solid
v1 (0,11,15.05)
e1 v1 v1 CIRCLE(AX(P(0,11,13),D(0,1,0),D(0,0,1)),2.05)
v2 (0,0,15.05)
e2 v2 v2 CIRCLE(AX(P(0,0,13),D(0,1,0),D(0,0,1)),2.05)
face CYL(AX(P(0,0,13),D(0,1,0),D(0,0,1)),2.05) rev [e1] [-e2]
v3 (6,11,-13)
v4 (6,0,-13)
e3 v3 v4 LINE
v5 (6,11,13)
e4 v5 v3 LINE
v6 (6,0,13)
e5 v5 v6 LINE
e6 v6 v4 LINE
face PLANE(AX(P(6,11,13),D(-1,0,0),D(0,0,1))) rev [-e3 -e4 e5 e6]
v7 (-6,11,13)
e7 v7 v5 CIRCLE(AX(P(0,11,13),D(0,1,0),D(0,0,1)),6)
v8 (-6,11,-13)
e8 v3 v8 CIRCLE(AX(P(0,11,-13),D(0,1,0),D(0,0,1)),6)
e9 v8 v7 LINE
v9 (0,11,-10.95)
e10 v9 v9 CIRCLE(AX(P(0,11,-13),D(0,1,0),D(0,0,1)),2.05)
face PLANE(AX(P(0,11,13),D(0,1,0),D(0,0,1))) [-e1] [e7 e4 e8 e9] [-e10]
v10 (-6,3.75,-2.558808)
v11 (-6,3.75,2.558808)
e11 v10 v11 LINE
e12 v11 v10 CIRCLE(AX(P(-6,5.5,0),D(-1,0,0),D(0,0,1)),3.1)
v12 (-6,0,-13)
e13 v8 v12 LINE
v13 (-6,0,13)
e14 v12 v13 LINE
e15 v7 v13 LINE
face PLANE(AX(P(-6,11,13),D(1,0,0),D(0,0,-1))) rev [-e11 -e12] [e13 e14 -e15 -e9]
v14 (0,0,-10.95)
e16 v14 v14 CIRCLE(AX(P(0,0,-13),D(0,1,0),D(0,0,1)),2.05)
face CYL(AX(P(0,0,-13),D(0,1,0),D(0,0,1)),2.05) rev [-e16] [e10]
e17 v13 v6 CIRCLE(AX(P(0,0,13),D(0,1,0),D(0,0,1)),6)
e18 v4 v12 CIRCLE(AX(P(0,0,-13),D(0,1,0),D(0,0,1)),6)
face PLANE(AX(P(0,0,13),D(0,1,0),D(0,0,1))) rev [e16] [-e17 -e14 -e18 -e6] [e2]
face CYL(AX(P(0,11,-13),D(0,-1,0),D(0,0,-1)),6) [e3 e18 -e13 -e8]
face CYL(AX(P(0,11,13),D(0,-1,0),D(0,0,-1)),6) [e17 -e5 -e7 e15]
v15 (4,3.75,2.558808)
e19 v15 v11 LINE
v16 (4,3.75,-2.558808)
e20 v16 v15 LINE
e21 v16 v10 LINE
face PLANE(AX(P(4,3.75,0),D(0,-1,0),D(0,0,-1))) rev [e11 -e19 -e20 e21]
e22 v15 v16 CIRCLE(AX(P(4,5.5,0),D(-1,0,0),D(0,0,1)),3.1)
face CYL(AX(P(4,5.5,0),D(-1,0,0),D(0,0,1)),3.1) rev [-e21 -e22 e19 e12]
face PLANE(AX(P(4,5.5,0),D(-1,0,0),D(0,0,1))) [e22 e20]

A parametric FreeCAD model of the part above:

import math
import FreeCAD as App
import Part
import Sketcher

doc = App.newDocument("Part")
body = doc.addObject("PartDesign::Body", "Body")

# Sketch on XZ plane
sketch1 = body.newObject("Sketcher::SketchObject", "Sketch")
sketch1.AttachmentSupport = (doc.getObject("XZ_Plane"), [""])
sketch1.MapMode = "FlatFace"
sketch1.addGeometry([
    Part.LineSegment(App.Vector(-6, -13, 0), App.Vector(-6, 13, 0)),
    Part.ArcOfCircle(Part.Circle(App.Vector(0, 13, 0), App.Vector(0, 0, 1), 6), math.radians(0), math.radians(180)),
    Part.LineSegment(App.Vector(6, 13, 0), App.Vector(6, -13, 0)),
    Part.ArcOfCircle(Part.Circle(App.Vector(0, -13, 0), App.Vector(0, 0, 1), 6), math.radians(180), math.radians(360)),
], False)
sketch1.addConstraint([
    Sketcher.Constraint("Tangent", 0, 2, 1, 2),
    Sketcher.Constraint("Tangent", 1, 1, 2, 1),
    Sketcher.Constraint("Tangent", 2, 2, 3, 2),
    Sketcher.Constraint("Tangent", 3, 1, 0, 1),
    Sketcher.Constraint("Vertical", 0),
    Sketcher.Constraint("Vertical", 2),
    Sketcher.Constraint("Symmetric", 1, 3, 3, 3, -1, 1),
    Sketcher.Constraint("Radius", 1, 6.0),
    Sketcher.Constraint("DistanceY", 0, 1, 0, 2, 26.0),
])
pad1 = body.newObject("PartDesign::Pad", "Pad")
pad1.Profile = sketch1
pad1.Length = 11
pad1.Reversed = True

# Sketch on XZ plane
sketch2 = body.newObject("Sketcher::SketchObject", "Sketch001")
sketch2.AttachmentSupport = (doc.getObject("XZ_Plane"), [""])
sketch2.MapMode = "FlatFace"
sketch2.AttachmentOffset = App.Placement(App.Vector(0, 0, -11), App.Rotation())
sketch2.addGeometry([
    Part.Circle(App.Vector(0, -13, 0), App.Vector(0, 0, 1), 2),
    Part.Circle(App.Vector(0, 13, 0), App.Vector(0, 0, 1), 2),
], False)
sketch2.addConstraint([
    Sketcher.Constraint("Equal", 0, 1),
    Sketcher.Constraint("Symmetric", 0, 3, 1, 3, -1, 1),
    Sketcher.Constraint("PointOnObject", 0, 3, -2),
    Sketcher.Constraint("Diameter", 0, 4.1),
    Sketcher.Constraint("DistanceY", 0, 3, -1, 1, 13.0),
])
pocket1 = body.newObject("PartDesign::Pocket", "Pocket")
pocket1.Profile = sketch2
pocket1.Type = "ThroughAll"
pocket1.Reversed = True

# Sketch on YZ plane
sketch3 = body.newObject("Sketcher::SketchObject", "Sketch002")
sketch3.AttachmentSupport = (doc.getObject("YZ_Plane"), [""])
sketch3.MapMode = "FlatFace"
sketch3.AttachmentOffset = App.Placement(App.Vector(0, 0, -6), App.Rotation())
sketch3.addGeometry(Part.Circle(App.Vector(5.5, 0, 0), App.Vector(0, 0, 1), 3.1), False)
sketch3.addConstraint([
    Sketcher.Constraint("PointOnObject", 0, 3, -1),
    Sketcher.Constraint("Diameter", 0, 6.2),
    Sketcher.Constraint("DistanceX", -1, 1, 0, 3, 5.5),
])
pocket2 = body.newObject("PartDesign::Pocket", "Pocket001")
pocket2.Profile = sketch3
pocket2.Length = 10
pocket2.Reversed = True

# Sketch on YZ plane
sketch4 = body.newObject("Sketcher::SketchObject", "Sketch003")
sketch4.AttachmentSupport = (doc.getObject("YZ_Plane"), [""])
sketch4.MapMode = "FlatFace"
sketch4.AttachmentOffset = App.Placement(App.Vector(0, 0, -6), App.Rotation())
sketch4.addGeometry([
    Part.LineSegment(App.Vector(3.8, 3.1, 0), App.Vector(3.8, -3.1, 0)),
    Part.ArcOfCircle(Part.Circle(App.Vector(5.5, 0, 0), App.Vector(0, 0, 1), 3.6), math.radians(119), math.radians(241)),
], False)
sketch4.addConstraint([
    Sketcher.Constraint("Coincident", 0, 1, 1, 1),
    Sketcher.Constraint("Coincident", 1, 2, 0, 2),
    Sketcher.Constraint("Vertical", 0),
    Sketcher.Constraint("PointOnObject", 1, 3, -1),
    Sketcher.Constraint("Radius", 1, 3.6),
    Sketcher.Constraint("DistanceX", -1, 1, 1, 3, 5.5),
    Sketcher.Constraint("DistanceX", -1, 1, 0, 1, 3.75),
])
pad2 = body.newObject("PartDesign::Pad", "Pad001")
pad2.Profile = sketch4
pad2.Length = 10

doc.recompute()
